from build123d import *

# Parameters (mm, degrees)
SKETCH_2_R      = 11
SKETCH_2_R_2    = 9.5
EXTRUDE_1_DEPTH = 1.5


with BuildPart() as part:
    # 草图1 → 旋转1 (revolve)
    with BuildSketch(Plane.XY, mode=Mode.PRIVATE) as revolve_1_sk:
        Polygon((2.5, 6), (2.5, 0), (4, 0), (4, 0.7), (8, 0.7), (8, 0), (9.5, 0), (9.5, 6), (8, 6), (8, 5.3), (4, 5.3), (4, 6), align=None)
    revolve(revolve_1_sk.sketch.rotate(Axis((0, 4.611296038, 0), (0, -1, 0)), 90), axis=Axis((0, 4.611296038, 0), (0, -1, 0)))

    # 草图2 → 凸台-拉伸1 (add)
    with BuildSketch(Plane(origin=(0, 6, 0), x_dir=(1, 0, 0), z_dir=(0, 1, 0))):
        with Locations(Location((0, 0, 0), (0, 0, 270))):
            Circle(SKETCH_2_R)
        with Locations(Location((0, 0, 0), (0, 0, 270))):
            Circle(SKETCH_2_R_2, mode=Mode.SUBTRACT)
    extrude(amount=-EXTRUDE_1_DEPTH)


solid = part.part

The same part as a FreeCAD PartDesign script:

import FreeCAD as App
import Part
import Sketcher
Q = App.Units.Quantity

doc = App.newDocument("Part")
body = doc.addObject("PartDesign::Body", "Body")

# Sketch on XY plane
sketch1 = body.newObject("Sketcher::SketchObject", "Sketch")
sketch1.AttachmentSupport = (doc.getObject("XY_Plane"), [""])
sketch1.MapMode = "FlatFace"
sketch1.addGeometry(Part.LineSegment(App.Vector(2.5, 6, 0), App.Vector(2.5, 0, 0)), False)
sketch1.addGeometry(Part.LineSegment(App.Vector(2.5, 0, 0), App.Vector(4, 0, 0)), False)
sketch1.addGeometry(Part.LineSegment(App.Vector(4, 0, 0), App.Vector(4, 0.7, 0)), False)
sketch1.addGeometry(Part.LineSegment(App.Vector(4, 0.7, 0), App.Vector(8, 0.7, 0)), False)
sketch1.addGeometry(Part.LineSegment(App.Vector(8, 0.7, 0), App.Vector(8, 0, 0)), False)
sketch1.addGeometry(Part.LineSegment(App.Vector(8, 0, 0), App.Vector(9.5, 0, 0)), False)
sketch1.addGeometry(Part.LineSegment(App.Vector(9.5, 0, 0), App.Vector(9.5, 6, 0)), False)
sketch1.addGeometry(Part.LineSegment(App.Vector(9.5, 6, 0), App.Vector(8, 6, 0)), False)
sketch1.addGeometry(Part.LineSegment(App.Vector(8, 6, 0), App.Vector(8, 5.3, 0)), False)
sketch1.addGeometry(Part.LineSegment(App.Vector(8, 5.3, 0), App.Vector(4, 5.3, 0)), False)
sketch1.addGeometry(Part.LineSegment(App.Vector(4, 5.3, 0), App.Vector(4, 6, 0)), False)
sketch1.addGeometry(Part.LineSegment(App.Vector(4, 6, 0), App.Vector(2.5, 6, 0)), False)
sketch1.addConstraint(Sketcher.Constraint("Coincident", 0, 2, 1, 1))
sketch1.addConstraint(Sketcher.Constraint("Coincident", 1, 2, 2, 1))
sketch1.addConstraint(Sketcher.Constraint("Coincident", 2, 2, 3, 1))
sketch1.addConstraint(Sketcher.Constraint("Coincident", 3, 2, 4, 1))
sketch1.addConstraint(Sketcher.Constraint("Coincident", 4, 2, 5, 1))
sketch1.addConstraint(Sketcher.Constraint("Coincident", 5, 2, 6, 1))
sketch1.addConstraint(Sketcher.Constraint("Coincident", 6, 2, 7, 1))
sketch1.addConstraint(Sketcher.Constraint("Coincident", 7, 2, 8, 1))
sketch1.addConstraint(Sketcher.Constraint("Coincident", 8, 2, 9, 1))
sketch1.addConstraint(Sketcher.Constraint("Coincident", 9, 2, 10, 1))
sketch1.addConstraint(Sketcher.Constraint("Coincident", 10, 2, 11, 1))
sketch1.addConstraint(Sketcher.Constraint("Coincident", 11, 2, 0, 1))
sketch1.addConstraint(Sketcher.Constraint("Vertical", 0))
sketch1.addConstraint(Sketcher.Constraint("Horizontal", 1))
sketch1.addConstraint(Sketcher.Constraint("Vertical", 2))
sketch1.addConstraint(Sketcher.Constraint("Horizontal", 3))
sketch1.addConstraint(Sketcher.Constraint("Vertical", 4))
sketch1.addConstraint(Sketcher.Constraint("Horizontal", 5))
sketch1.addConstraint(Sketcher.Constraint("Vertical", 6))
sketch1.addConstraint(Sketcher.Constraint("Horizontal", 7))
sketch1.addConstraint(Sketcher.Constraint("Vertical", 8))
sketch1.addConstraint(Sketcher.Constraint("Horizontal", 9))
sketch1.addConstraint(Sketcher.Constraint("Vertical", 10))
sketch1.addConstraint(Sketcher.Constraint("Horizontal", 11))
sketch1.addConstraint(Sketcher.Constraint("PointOnObject", 0, 2, -1))
sketch1.addConstraint(Sketcher.Constraint("PointOnObject", 4, 2, -1))
sketch1.addConstraint(Sketcher.Constraint("Horizontal", 7, 2, 10, 2))
sketch1.addConstraint(Sketcher.Constraint("Vertical", 4, 2, 7, 2))
sketch1.addConstraint(Sketcher.Constraint("Vertical", 2, 2, 9, 2))
sketch1.addConstraint(Sketcher.Constraint("Equal", 1, 5))
sketch1.addConstraint(Sketcher.Constraint("Equal", 4, 8))
sketch1.addConstraint(Sketcher.Constraint("DistanceX", 3, 1, 3, 2, Q("4 mm")))
sketch1.addConstraint(Sketcher.Constraint("DistanceY", 0, 2, 0, 1, Q("6 mm")))
sketch1.addConstraint(Sketcher.Constraint("DistanceX", 1, 1, 1, 2, Q("1.5 mm")))
sketch1.addConstraint(Sketcher.Constraint("DistanceY", 2, 1, 2, 2, Q("0.7 mm")))
sketch1.addConstraint(Sketcher.Constraint("DistanceX", -1, 1, 1, 2, Q("4 mm")))
revolution = body.newObject("PartDesign::Revolution", "Revolution")
revolution.Profile = sketch1
revolution.ReferenceAxis = (sketch1, ["V_Axis"])
revolution.Angle = 360

# Sketch on XZ plane
sketch2 = body.newObject("Sketcher::SketchObject", "Sketch001")
sketch2.AttachmentSupport = (doc.getObject("XZ_Plane"), [""])
sketch2.MapMode = "FlatFace"
sketch2.AttachmentOffset = App.Placement(App.Vector(0, 0, -6), App.Rotation())
sketch2.addGeometry(Part.Circle(App.Vector(0, 0, 0), App.Vector(0, 0, 1), 11), False)
sketch2.addGeometry(Part.Circle(App.Vector(0, 0, 0), App.Vector(0, 0, 1), 10), False)
sketch2.addConstraint(Sketcher.Constraint("Coincident", 0, 3, -1, 1))
sketch2.addConstraint(Sketcher.Constraint("Coincident", 1, 3, -1, 1))
sketch2.addConstraint(Sketcher.Constraint("Diameter", 0, Q("22 mm")))
sketch2.addConstraint(Sketcher.Constraint("Diameter", 1, Q("19 mm")))
pad1 = body.newObject("PartDesign::Pad", "Pad")
pad1.Profile = sketch2
pad1.Length = 1.5

doc.recompute()
